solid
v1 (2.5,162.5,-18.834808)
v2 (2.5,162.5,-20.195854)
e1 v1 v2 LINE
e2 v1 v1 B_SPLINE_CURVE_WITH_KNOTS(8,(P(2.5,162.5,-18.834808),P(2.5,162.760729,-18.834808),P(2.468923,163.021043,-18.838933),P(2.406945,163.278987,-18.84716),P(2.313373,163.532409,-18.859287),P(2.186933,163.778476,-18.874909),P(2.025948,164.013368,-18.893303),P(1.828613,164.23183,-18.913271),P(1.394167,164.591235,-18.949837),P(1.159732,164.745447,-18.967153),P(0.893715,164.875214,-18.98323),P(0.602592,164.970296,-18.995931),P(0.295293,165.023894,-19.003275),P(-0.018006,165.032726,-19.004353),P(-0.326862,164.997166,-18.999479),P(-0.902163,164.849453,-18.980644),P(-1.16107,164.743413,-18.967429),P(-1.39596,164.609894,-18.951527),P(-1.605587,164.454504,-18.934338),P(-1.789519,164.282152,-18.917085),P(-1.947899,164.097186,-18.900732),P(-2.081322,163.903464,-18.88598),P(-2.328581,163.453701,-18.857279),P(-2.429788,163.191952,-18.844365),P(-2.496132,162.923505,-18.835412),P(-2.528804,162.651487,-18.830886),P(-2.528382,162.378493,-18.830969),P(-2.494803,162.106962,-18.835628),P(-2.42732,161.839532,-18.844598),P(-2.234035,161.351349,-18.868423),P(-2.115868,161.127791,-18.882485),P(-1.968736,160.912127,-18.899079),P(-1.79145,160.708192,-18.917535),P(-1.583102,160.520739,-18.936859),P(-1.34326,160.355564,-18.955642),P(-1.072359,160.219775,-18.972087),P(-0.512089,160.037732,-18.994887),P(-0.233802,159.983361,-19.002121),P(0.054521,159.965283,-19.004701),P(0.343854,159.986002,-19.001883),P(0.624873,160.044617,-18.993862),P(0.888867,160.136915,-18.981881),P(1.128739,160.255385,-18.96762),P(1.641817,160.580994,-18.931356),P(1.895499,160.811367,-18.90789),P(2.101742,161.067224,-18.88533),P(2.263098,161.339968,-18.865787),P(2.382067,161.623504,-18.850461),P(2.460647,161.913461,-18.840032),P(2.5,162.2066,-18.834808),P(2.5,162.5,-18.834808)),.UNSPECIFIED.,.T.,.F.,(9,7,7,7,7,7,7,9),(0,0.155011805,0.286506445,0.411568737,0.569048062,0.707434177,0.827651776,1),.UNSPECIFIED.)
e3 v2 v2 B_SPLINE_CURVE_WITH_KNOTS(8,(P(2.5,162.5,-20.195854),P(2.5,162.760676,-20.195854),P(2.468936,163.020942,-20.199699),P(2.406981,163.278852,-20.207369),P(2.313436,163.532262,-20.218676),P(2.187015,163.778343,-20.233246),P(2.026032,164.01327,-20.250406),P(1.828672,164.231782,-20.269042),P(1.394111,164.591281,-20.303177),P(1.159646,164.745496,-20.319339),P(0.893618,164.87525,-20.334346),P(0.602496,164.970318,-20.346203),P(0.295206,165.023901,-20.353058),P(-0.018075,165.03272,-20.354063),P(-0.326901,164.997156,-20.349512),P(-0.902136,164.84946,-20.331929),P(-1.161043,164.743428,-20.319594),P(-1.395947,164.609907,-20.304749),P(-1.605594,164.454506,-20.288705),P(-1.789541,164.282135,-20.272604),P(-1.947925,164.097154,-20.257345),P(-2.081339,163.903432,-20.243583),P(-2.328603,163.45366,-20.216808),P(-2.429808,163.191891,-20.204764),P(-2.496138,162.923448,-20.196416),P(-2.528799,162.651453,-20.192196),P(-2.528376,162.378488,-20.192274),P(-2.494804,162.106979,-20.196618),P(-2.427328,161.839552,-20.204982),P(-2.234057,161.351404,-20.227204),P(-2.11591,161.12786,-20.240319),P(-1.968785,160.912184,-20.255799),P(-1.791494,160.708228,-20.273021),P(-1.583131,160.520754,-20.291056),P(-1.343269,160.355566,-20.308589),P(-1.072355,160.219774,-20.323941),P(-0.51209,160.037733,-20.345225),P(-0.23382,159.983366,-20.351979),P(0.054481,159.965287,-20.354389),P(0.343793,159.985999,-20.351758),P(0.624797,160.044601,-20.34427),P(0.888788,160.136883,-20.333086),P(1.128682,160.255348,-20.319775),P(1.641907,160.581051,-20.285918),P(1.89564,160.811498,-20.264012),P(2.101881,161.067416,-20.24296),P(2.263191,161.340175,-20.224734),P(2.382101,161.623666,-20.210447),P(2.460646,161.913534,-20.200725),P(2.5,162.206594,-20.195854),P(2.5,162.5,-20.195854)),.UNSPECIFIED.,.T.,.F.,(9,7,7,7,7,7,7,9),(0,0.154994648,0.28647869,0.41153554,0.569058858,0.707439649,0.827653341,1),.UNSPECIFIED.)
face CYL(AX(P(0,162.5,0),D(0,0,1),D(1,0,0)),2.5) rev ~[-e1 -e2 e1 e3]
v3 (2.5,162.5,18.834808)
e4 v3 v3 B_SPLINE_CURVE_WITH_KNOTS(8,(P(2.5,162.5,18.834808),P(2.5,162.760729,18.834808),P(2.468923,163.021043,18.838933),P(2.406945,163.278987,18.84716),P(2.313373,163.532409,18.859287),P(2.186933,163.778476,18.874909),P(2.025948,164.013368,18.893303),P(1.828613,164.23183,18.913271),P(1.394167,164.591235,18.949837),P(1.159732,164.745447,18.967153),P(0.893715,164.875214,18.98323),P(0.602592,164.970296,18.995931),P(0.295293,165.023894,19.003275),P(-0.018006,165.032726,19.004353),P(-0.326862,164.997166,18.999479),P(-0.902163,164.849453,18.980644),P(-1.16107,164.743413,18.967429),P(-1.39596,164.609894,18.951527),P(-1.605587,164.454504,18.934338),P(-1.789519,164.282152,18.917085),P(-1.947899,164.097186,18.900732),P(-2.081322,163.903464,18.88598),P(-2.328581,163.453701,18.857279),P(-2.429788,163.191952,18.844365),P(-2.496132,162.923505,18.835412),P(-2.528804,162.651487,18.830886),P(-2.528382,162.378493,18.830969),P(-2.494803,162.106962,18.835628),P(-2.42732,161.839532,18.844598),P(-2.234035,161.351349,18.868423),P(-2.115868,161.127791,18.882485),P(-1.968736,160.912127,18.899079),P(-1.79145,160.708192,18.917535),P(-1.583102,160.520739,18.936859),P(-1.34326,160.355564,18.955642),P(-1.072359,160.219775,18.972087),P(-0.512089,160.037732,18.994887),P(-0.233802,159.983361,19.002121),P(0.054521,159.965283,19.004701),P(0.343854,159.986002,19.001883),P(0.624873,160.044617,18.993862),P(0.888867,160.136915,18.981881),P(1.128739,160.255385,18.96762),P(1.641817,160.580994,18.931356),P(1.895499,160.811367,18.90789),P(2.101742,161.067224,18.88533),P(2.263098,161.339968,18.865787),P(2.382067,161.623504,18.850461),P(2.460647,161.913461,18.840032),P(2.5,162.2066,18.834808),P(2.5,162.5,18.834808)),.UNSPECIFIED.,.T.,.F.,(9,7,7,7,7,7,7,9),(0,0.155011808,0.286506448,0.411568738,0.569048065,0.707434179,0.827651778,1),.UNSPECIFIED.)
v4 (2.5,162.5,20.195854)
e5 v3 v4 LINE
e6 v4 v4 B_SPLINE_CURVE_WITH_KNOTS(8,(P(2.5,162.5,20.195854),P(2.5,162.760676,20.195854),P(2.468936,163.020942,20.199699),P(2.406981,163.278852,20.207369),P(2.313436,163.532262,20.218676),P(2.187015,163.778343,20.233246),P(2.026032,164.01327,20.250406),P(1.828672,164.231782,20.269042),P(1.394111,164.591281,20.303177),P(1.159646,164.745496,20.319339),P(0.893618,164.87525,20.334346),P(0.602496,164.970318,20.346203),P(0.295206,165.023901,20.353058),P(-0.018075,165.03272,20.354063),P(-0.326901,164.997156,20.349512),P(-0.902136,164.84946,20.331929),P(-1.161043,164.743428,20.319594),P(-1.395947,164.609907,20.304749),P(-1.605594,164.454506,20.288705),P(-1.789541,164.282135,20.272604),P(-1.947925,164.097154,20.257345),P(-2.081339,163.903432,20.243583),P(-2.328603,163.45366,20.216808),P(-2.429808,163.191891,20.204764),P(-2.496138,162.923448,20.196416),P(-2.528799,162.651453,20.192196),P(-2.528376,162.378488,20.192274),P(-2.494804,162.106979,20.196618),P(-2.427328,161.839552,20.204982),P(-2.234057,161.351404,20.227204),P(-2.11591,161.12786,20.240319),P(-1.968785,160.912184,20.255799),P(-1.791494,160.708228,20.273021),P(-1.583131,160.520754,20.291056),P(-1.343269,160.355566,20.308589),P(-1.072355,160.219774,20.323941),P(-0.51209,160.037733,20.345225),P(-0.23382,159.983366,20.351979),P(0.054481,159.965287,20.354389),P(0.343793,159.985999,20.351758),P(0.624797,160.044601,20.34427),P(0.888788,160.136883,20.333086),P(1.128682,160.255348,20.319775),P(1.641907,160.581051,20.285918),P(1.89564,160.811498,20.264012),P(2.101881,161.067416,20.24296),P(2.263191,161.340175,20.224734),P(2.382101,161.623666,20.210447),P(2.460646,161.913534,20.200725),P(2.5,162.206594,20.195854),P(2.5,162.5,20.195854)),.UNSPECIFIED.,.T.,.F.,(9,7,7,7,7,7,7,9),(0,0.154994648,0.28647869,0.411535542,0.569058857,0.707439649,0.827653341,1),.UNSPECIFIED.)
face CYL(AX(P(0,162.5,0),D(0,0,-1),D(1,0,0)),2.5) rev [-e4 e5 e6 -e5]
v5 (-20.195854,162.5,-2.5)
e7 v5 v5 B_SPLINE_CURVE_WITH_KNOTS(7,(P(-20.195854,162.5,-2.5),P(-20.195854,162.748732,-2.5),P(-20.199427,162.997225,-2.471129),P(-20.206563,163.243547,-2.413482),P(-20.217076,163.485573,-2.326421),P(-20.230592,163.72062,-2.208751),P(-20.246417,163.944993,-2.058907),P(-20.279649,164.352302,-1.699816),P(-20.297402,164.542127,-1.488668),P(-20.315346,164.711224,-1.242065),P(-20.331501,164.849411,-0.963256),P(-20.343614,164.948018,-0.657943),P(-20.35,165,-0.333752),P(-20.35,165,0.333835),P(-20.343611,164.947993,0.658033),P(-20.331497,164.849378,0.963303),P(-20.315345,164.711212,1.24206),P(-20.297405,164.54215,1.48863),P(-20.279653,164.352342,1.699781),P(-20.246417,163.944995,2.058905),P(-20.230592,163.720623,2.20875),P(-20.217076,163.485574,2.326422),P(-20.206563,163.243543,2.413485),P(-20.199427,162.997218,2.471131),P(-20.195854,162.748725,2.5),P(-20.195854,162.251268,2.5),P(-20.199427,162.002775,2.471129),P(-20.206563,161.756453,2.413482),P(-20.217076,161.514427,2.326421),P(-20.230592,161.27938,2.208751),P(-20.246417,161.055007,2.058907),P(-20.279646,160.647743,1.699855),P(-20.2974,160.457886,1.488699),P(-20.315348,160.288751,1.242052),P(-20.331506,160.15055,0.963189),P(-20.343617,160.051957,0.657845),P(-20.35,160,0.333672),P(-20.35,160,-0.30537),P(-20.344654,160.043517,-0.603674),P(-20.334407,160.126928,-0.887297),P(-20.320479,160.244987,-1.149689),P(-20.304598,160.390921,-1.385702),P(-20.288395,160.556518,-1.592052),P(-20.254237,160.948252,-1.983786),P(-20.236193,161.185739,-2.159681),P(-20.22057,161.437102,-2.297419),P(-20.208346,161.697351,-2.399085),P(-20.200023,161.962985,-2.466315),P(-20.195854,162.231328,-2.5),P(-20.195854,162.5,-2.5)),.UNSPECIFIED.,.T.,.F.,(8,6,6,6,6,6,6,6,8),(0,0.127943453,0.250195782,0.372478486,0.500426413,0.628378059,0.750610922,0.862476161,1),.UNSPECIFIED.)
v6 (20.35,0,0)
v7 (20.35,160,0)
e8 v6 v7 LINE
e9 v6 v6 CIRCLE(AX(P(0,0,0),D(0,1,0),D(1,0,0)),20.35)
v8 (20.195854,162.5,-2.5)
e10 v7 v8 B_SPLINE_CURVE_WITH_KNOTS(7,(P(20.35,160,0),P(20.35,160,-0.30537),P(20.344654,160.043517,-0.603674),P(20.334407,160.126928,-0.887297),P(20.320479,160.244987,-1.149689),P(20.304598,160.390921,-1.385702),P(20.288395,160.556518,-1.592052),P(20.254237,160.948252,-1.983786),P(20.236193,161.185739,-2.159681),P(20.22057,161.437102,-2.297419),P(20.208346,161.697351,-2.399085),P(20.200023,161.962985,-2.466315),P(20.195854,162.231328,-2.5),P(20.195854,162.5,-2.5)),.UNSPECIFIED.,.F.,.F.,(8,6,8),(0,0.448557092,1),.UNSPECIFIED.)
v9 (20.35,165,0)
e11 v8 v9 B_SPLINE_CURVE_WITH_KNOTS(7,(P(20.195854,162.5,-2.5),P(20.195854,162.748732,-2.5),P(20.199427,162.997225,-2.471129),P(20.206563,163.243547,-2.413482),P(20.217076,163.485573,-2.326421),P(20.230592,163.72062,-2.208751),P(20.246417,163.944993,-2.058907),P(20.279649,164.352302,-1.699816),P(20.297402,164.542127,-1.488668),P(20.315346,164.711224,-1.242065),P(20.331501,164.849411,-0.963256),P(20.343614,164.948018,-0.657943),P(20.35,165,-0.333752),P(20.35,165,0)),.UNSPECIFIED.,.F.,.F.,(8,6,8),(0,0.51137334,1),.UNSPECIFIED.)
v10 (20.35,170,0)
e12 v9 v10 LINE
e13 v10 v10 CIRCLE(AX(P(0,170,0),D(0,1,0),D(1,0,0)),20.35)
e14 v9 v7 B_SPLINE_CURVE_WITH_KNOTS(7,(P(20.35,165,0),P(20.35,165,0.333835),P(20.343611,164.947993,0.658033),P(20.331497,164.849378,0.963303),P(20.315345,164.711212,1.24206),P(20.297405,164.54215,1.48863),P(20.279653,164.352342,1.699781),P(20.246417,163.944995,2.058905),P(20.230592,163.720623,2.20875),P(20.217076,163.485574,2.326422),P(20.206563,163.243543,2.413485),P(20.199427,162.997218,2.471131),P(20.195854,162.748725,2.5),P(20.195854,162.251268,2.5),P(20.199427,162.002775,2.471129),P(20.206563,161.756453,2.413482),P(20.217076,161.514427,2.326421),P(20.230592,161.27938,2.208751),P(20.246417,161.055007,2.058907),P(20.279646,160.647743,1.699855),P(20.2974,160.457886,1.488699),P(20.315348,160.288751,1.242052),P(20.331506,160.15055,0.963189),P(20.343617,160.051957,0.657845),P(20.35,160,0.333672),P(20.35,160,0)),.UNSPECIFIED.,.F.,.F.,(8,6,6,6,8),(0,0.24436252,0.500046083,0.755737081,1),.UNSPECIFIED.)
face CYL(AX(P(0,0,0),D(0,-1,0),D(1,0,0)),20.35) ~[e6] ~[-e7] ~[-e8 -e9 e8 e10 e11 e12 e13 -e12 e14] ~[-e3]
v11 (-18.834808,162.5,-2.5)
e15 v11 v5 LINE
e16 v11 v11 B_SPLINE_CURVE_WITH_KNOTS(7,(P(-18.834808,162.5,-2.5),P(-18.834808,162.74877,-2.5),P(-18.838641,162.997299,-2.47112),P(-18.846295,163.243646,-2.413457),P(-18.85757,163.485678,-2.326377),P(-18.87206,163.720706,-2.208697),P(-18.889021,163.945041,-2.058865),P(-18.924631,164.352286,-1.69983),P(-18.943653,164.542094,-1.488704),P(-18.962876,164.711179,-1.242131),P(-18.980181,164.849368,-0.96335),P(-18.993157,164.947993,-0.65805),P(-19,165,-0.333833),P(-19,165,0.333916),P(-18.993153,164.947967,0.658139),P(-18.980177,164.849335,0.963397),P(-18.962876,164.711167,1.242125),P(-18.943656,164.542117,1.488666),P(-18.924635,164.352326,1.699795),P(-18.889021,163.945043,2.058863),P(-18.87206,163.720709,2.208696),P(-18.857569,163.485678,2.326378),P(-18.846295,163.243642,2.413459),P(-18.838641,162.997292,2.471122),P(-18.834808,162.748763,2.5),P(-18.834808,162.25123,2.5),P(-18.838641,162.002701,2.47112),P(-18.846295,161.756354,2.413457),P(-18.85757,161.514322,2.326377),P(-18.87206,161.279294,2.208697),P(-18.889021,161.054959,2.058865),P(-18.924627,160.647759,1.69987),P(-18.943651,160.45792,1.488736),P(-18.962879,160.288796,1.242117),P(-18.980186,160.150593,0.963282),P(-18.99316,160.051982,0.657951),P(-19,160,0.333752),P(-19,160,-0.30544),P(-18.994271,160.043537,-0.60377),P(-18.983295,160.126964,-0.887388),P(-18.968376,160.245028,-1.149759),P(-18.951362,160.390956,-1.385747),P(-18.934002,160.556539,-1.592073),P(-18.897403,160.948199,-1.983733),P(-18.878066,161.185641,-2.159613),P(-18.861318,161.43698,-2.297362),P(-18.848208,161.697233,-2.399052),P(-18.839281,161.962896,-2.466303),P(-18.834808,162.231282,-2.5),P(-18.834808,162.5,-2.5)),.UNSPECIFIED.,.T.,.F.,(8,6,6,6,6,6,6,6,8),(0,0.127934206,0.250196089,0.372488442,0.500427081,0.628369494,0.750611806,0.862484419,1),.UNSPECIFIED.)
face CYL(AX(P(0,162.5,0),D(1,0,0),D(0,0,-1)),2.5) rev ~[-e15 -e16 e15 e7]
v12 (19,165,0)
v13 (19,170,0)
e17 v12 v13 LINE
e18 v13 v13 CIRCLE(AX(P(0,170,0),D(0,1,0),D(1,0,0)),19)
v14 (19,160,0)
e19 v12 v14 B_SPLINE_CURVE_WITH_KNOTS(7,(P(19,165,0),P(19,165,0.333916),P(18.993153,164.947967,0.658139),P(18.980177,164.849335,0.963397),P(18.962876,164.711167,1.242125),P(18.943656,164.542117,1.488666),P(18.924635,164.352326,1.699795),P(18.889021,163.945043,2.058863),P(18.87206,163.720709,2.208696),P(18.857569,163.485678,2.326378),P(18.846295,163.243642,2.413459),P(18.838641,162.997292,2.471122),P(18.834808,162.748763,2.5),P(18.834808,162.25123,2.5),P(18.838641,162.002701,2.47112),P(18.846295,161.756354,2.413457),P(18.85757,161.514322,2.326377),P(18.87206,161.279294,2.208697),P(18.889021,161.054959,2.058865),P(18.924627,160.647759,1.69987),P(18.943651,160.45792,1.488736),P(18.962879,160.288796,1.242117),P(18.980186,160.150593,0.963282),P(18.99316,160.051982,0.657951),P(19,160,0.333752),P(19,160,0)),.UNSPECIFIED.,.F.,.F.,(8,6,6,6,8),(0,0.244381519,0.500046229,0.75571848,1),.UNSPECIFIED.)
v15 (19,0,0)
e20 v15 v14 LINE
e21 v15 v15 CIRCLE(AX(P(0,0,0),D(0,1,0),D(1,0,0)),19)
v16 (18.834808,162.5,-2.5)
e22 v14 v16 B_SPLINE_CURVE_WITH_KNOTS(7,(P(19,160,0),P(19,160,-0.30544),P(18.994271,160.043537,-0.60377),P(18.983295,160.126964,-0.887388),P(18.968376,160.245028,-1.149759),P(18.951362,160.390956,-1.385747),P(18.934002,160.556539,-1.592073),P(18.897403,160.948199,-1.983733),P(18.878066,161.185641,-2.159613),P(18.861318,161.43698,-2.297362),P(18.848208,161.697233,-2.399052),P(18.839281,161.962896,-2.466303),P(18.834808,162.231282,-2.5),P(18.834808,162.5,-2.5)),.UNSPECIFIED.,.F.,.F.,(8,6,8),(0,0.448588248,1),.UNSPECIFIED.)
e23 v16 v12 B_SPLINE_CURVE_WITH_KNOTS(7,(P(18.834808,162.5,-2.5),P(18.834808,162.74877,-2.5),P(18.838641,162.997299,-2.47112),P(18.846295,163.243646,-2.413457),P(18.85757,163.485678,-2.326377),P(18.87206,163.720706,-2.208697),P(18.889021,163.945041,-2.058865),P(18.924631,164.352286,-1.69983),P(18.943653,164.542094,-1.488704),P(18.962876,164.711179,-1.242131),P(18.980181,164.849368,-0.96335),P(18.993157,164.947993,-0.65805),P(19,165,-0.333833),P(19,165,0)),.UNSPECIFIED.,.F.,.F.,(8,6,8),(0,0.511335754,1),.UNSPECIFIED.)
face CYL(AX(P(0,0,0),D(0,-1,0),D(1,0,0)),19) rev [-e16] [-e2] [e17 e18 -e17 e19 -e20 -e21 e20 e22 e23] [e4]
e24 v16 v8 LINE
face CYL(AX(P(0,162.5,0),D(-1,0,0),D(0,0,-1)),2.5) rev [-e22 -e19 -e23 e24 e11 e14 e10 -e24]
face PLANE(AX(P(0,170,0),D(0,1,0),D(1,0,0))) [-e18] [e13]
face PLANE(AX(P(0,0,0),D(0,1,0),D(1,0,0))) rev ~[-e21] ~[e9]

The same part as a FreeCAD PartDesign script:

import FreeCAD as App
import Part
import Sketcher
from FreeCAD import Vector
Q = App.Units.Quantity

doc = App.newDocument("Part")
body = doc.addObject("PartDesign::Body", "Body")

sketch1 = body.newObject("Sketcher::SketchObject", "Sketch")
sketch1.AttachmentSupport = (doc.getObject("XZ_Plane"), [""])
sketch1.MapMode = "FlatFace"
sketch1.addGeometry([
    Part.Circle(Vector(0, 0, 0), Vector(0, 0, 1), 20.35),
    Part.Circle(Vector(0, 0, 0), Vector(0, 0, 1), 19),
], False)
sketch1.addConstraint([
    Sketcher.Constraint("Coincident", 0, 3, -1, 1),
    Sketcher.Constraint("Coincident", 1, 3, -1, 1),
    Sketcher.Constraint("Diameter", 1, Q("38 mm")),
    Sketcher.Constraint("Diameter", 0, Q("40.7 mm")),
])
pad1 = body.newObject("PartDesign::Pad", "Pad")
pad1.Profile = sketch1
pad1.Length = 170
pad1.Reversed = True

sketch2 = body.newObject("Sketcher::SketchObject", "Sketch001")
sketch2.AttachmentSupport = (doc.getObject("XY_Plane"), [""])
sketch2.MapMode = "FlatFace"
sketch2.addGeometry(Part.Circle(Vector(0, 162.5, 0), Vector(0, 0, 1), 2.5), False)
sketch2.addConstraint([
    Sketcher.Constraint("PointOnObject", 0, 3, -2),
    Sketcher.Constraint("Diameter", 0, Q("5 mm")),
    Sketcher.Constraint("DistanceY", -1, 1, 0, 3, Q("162.5 mm")),
])
pocket1 = body.newObject("PartDesign::Pocket", "Pocket")
pocket1.Profile = sketch2
pocket1.Type = "ThroughAll"
pocket1.Midplane = True

sketch3 = body.newObject("Sketcher::SketchObject", "Sketch002")
sketch3.AttachmentSupport = (doc.getObject("YZ_Plane"), [""])
sketch3.MapMode = "FlatFace"
sketch3.addGeometry(Part.Circle(Vector(162.5, 0, 0), Vector(0, 0, 1), 2.5), False)
sketch3.addConstraint([
    Sketcher.Constraint("PointOnObject", 0, 3, -1),
    Sketcher.Constraint("Diameter", 0, Q("5 mm")),
    Sketcher.Constraint("DistanceX", -1, 1, 0, 3, Q("162.5 mm")),
])
pocket2 = body.newObject("PartDesign::Pocket", "Pocket001")
pocket2.Profile = sketch3
pocket2.Type = "ThroughAll"
pocket2.Midplane = True

doc.recompute()
